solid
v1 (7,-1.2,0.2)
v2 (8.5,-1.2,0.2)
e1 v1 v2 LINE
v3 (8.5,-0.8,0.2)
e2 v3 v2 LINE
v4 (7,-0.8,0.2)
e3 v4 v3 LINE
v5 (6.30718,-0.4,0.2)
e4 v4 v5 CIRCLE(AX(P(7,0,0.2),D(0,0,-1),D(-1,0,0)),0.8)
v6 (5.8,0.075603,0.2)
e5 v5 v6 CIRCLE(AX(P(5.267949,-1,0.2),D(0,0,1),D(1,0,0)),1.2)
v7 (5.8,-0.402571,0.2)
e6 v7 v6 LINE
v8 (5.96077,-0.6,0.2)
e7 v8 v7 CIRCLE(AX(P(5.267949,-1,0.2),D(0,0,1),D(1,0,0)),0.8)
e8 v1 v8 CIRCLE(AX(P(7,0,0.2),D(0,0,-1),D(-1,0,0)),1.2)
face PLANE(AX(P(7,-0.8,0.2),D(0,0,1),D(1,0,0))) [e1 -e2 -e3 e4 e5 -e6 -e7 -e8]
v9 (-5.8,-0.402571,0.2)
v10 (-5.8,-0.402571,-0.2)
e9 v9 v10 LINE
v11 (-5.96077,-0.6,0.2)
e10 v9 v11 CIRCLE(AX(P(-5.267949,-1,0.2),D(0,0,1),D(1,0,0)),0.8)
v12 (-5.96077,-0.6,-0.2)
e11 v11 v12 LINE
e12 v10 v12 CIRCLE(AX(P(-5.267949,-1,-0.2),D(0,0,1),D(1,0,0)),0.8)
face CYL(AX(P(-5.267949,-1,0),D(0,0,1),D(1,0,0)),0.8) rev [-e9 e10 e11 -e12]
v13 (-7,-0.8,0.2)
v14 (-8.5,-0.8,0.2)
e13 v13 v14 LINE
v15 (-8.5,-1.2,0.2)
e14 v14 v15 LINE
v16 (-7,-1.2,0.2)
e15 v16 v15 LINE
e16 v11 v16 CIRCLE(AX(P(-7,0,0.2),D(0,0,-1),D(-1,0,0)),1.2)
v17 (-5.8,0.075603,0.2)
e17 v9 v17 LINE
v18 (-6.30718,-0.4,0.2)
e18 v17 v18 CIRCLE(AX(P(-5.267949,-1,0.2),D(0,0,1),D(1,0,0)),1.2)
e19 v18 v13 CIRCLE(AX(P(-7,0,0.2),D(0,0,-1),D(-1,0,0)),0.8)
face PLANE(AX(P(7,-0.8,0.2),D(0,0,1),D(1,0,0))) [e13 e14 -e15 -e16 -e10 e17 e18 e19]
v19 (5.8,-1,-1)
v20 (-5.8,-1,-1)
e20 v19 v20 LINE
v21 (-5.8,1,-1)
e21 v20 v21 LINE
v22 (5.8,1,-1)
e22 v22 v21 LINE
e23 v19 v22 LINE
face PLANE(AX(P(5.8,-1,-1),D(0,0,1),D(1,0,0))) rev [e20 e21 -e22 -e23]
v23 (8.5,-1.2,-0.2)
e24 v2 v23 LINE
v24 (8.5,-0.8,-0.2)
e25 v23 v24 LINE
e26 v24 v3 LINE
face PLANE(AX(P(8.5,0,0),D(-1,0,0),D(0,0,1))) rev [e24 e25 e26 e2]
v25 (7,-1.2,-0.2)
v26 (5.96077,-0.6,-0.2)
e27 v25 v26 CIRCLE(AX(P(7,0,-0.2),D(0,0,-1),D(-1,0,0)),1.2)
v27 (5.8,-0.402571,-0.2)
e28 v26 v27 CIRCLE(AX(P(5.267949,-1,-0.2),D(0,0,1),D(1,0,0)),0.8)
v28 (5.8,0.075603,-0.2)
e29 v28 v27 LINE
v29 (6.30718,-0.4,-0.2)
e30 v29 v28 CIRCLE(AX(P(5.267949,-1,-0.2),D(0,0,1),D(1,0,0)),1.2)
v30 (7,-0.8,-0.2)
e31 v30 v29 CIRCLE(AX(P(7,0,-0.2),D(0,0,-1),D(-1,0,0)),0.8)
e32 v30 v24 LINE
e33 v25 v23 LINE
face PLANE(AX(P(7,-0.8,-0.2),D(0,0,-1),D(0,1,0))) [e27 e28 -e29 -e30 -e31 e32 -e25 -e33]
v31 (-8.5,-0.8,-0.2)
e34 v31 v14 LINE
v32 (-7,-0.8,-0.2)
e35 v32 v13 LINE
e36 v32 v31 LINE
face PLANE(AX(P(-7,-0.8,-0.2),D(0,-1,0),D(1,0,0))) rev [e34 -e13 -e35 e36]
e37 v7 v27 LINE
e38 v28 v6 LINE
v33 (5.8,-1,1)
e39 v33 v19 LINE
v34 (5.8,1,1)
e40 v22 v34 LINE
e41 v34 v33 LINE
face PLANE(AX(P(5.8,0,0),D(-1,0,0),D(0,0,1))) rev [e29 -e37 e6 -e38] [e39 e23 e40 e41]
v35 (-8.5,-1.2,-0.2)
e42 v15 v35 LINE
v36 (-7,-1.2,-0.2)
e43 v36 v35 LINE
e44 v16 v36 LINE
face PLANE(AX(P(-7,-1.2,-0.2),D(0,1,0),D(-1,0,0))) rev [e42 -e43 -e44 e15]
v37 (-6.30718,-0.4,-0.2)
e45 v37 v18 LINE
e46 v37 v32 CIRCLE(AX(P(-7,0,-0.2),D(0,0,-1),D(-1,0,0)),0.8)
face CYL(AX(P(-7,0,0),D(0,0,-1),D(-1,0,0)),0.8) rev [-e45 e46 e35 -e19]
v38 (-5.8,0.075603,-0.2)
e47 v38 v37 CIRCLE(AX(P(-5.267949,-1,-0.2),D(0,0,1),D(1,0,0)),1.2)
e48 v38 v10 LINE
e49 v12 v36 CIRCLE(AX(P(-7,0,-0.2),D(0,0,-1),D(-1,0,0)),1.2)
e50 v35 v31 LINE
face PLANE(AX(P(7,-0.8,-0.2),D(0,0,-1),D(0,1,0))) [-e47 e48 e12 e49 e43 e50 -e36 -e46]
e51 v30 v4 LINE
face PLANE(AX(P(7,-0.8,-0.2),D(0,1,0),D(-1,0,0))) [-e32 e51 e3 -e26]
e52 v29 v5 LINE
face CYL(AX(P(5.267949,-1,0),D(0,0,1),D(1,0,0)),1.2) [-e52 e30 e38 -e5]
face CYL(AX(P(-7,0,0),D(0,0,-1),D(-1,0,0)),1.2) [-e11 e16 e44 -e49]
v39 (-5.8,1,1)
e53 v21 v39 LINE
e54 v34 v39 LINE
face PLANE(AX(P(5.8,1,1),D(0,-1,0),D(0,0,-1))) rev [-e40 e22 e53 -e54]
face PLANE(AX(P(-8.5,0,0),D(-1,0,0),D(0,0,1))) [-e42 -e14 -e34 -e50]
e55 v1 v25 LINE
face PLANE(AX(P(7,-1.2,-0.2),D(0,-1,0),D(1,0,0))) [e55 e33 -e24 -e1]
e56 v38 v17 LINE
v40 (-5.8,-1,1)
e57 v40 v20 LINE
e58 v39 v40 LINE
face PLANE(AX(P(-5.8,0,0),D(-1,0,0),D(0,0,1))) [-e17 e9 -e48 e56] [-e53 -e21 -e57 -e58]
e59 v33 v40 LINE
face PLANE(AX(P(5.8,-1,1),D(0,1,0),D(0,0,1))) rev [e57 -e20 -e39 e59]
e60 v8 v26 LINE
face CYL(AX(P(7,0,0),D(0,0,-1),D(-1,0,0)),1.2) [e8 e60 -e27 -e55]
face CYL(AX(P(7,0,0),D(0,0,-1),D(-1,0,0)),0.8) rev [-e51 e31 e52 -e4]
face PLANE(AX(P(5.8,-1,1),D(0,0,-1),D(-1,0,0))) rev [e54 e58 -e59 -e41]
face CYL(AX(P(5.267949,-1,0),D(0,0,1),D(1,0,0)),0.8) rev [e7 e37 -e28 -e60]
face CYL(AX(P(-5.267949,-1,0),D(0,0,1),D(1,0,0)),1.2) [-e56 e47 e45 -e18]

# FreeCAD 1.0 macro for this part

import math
import FreeCAD as App
import Part
import Sketcher

V = App.Vector

doc = App.newDocument("Part")
body = doc.addObject("PartDesign::Body", "Body")

sketch1 = body.newObject("Sketcher::SketchObject", "Sketch")
sketch1.AttachmentSupport = (doc.getObject("YZ_Plane"), [""])
sketch1.MapMode = "FlatFace"
sketch1.addGeometry([
    Part.LineSegment(V(1, 1, 0), V(-1, 1, 0)),
    Part.LineSegment(V(-1, 1, 0), V(-1, -1, 0)),
    Part.LineSegment(V(-1, -1, 0), V(1, -1, 0)),
    Part.LineSegment(V(1, -1, 0), V(1, 1, 0)),
], False)
sketch1.addConstraint([
    Sketcher.Constraint("Coincident", 0, 2, 1, 1),
    Sketcher.Constraint("Coincident", 1, 2, 2, 1),
    Sketcher.Constraint("Coincident", 2, 2, 3, 1),
    Sketcher.Constraint("Coincident", 3, 2, 0, 1),
    Sketcher.Constraint("Horizontal", 0),
    Sketcher.Constraint("Vertical", 1),
    Sketcher.Constraint("Horizontal", 2),
    Sketcher.Constraint("Vertical", 3),
    Sketcher.Constraint("Symmetric", 0, 2, 2, 2, -1, 1),
    Sketcher.Constraint("Equal", 2, 1),
    Sketcher.Constraint("DistanceX", 0, 2, 0, 1, 2.0),
])
pad1 = body.newObject("PartDesign::Pad", "Pad")
pad1.Profile = sketch1
pad1.Length = 11.6
pad1.Midplane = True

sketch2 = body.newObject("Sketcher::SketchObject", "Sketch001")
sketch2.AttachmentSupport = (doc.getObject("YZ_Plane"), [""])
sketch2.MapMode = "FlatFace"
sketch2.AttachmentOffset = App.Placement(V(0, 0, 8.5), App.Rotation())
sketch2.addGeometry([
    Part.LineSegment(V(-0.8, 0.2, 0), V(-1.2, 0.2, 0)),
    Part.LineSegment(V(-1.2, 0.2, 0), V(-1.2, -0.2, 0)),
    Part.LineSegment(V(-1.2, -0.2, 0), V(-0.8, -0.2, 0)),
    Part.LineSegment(V(-0.8, -0.2, 0), V(-0.8, 0.2, 0)),
], False)
sketch2.addConstraint([
    Sketcher.Constraint("Coincident", 0, 2, 1, 1),
    Sketcher.Constraint("Coincident", 1, 2, 2, 1),
    Sketcher.Constraint("Coincident", 2, 2, 3, 1),
    Sketcher.Constraint("Coincident", 3, 2, 0, 1),
    Sketcher.Constraint("Horizontal", 0),
    Sketcher.Constraint("Vertical", 1),
    Sketcher.Constraint("Horizontal", 2),
    Sketcher.Constraint("Vertical", 3),
    Sketcher.Constraint("Equal", 2, 1),
    Sketcher.Constraint("DistanceX", 0, 2, 0, 1, 0.4),
    Sketcher.Constraint("DistanceX", 0, 2, -1, 1, 1.2),
    Sketcher.Constraint("DistanceY", -1, 1, 0, 2, 0.2),
])

sketch3 = body.newObject("Sketcher::SketchObject", "Sketch002")
sketch3.AttachmentSupport = (doc.getObject("XY_Plane"), [""])
sketch3.MapMode = "FlatFace"
sketch3.addGeometry([
    Part.LineSegment(V(-8.5, -1, 0), V(-7, -1, 0)),
    Part.ArcOfCircle(Part.Circle(V(-7, 0, 0), V(0, 0, 1), 1), math.radians(-90), math.radians(-30)),
    Part.ArcOfCircle(Part.Circle(V(-5.3, -1, 0), V(0, 0, 1), 1), math.radians(90), math.radians(150)),
    Part.LineSegment(V(-5.3, 0, 0), V(5.3, 0, 0)),
    Part.ArcOfCircle(Part.Circle(V(5.3, -1, 0), V(0, 0, 1), 1), math.radians(30), math.radians(90)),
    Part.ArcOfCircle(Part.Circle(V(7, 0, 0), V(0, 0, 1), 1), math.radians(-150), math.radians(-90)),
    Part.LineSegment(V(7, -1, 0), V(8.5, -1, 0)),
], False)
sketch3.addConstraint([
    Sketcher.Constraint("Tangent", 0, 2, 1, 1),
    Sketcher.Constraint("Tangent", 1, 2, 2, 2),
    Sketcher.Constraint("Tangent", 2, 1, 3, 1),
    Sketcher.Constraint("Tangent", 3, 2, 4, 2),
    Sketcher.Constraint("Tangent", 4, 1, 5, 1),
    Sketcher.Constraint("Tangent", 5, 2, 6, 1),
    Sketcher.Constraint("Horizontal", 0),
    Sketcher.Constraint("Horizontal", 3),
    Sketcher.Constraint("Horizontal", 6),
    Sketcher.Constraint("Equal", 1, 2),
    Sketcher.Constraint("Equal", 2, 4),
    Sketcher.Constraint("Equal", 4, 5),
    Sketcher.Constraint("Symmetric", 1, 3, 5, 3, -1, 1),
    Sketcher.Constraint("Symmetric", 2, 1, 3, 2, -1, 1),
    Sketcher.Constraint("Equal", 0, 6),
    Sketcher.Constraint("Radius", 1, 1.0),
    Sketcher.Constraint("DistanceX", 0, 1, 0, 2, 1.5),
    Sketcher.Constraint("DistanceX", 1, 3, -1, 1, 7.0),
])
doc.recompute()

additivepipe = body.newObject("PartDesign::AdditivePipe", "AdditivePipe")
additivepipe.Profile = sketch2
additivepipe.Spine = (sketch3, ["Edge1", "Edge2", "Edge3", "Edge4", "Edge5", "Edge6", "Edge7"])

doc.recompute()
